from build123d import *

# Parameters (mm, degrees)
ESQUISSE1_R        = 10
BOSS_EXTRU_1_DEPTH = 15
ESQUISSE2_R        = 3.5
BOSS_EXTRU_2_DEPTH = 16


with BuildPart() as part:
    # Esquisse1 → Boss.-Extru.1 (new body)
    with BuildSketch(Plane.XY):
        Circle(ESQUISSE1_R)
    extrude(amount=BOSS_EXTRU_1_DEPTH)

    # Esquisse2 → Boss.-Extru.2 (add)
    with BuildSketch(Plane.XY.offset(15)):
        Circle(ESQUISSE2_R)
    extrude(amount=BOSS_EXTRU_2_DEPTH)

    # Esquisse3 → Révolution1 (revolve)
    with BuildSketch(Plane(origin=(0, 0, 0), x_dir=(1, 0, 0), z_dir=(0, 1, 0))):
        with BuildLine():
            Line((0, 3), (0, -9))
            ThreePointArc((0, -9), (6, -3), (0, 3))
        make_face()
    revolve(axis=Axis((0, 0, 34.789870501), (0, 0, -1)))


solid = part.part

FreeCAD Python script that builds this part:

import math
import FreeCAD as App
import Part
import Sketcher

V = App.Vector
Q = App.Units.Quantity

doc = App.newDocument("Part")
body = doc.addObject("PartDesign::Body", "Body")

sketch1 = doc.addObject("Sketcher::SketchObject", "Sketch")
body.addObject(sketch1)
sketch1.AttachmentSupport = (doc.XY_Plane, [""])
sketch1.MapMode = "FlatFace"
sketch1.addGeometry(Part.Circle(V(0, 0, 0), V(0, 0, 1), 10), False)
sketch1.addConstraint([
    Sketcher.Constraint("Coincident", 0, 3, -1, 1),
    Sketcher.Constraint("Diameter", 0, Q("20 mm")),
])
pad1 = doc.addObject("PartDesign::Pad", "Pad")
body.addObject(pad1)
pad1.Profile = sketch1
pad1.Length = 15

sketch2 = doc.addObject("Sketcher::SketchObject", "Sketch001")
body.addObject(sketch2)
sketch2.AttachmentSupport = (doc.XY_Plane, [""])
sketch2.MapMode = "FlatFace"
sketch2.AttachmentOffset = App.Placement(V(0, 0, 15), App.Rotation())
sketch2.addGeometry(Part.Circle(V(0, 0, 0), V(0, 0, 1), 3.5), False)
sketch2.addConstraint([
    Sketcher.Constraint("Coincident", 0, 3, -1, 1),
    Sketcher.Constraint("Diameter", 0, Q("7 mm")),
])
pad2 = doc.addObject("PartDesign::Pad", "Pad001")
body.addObject(pad2)
pad2.Profile = sketch2
pad2.Length = 16

sketch3 = doc.addObject("Sketcher::SketchObject", "Sketch002")
body.addObject(sketch3)
sketch3.AttachmentSupport = (doc.XZ_Plane, [""])
sketch3.MapMode = "FlatFace"
sketch3.addGeometry([
    Part.LineSegment(V(0, -3, 0), V(0, 9, 0)),
    Part.ArcOfCircle(Part.Circle(V(0, 3, 0), V(0, 0, 1), 6), math.radians(-90), math.radians(90)),
], False)
sketch3.addConstraint([
    Sketcher.Constraint("Coincident", 0, 1, 1, 1),
    Sketcher.Constraint("Coincident", 1, 2, 0, 2),
    Sketcher.Constraint("Vertical", 0),
    Sketcher.Constraint("PointOnObject", 1, 3, -2),
    Sketcher.Constraint("PointOnObject", 0, 1, -2),
    Sketcher.Constraint("Radius", 1, Q("6 mm")),
    Sketcher.Constraint("DistanceY", -1, 1, 1, 3, Q("3 mm")),
])
revolution = doc.addObject("PartDesign::Revolution", "Revolution")
body.addObject(revolution)
revolution.Profile = sketch3
revolution.ReferenceAxis = (sketch3, ["V_Axis"])
revolution.Angle = 360

doc.recompute()
